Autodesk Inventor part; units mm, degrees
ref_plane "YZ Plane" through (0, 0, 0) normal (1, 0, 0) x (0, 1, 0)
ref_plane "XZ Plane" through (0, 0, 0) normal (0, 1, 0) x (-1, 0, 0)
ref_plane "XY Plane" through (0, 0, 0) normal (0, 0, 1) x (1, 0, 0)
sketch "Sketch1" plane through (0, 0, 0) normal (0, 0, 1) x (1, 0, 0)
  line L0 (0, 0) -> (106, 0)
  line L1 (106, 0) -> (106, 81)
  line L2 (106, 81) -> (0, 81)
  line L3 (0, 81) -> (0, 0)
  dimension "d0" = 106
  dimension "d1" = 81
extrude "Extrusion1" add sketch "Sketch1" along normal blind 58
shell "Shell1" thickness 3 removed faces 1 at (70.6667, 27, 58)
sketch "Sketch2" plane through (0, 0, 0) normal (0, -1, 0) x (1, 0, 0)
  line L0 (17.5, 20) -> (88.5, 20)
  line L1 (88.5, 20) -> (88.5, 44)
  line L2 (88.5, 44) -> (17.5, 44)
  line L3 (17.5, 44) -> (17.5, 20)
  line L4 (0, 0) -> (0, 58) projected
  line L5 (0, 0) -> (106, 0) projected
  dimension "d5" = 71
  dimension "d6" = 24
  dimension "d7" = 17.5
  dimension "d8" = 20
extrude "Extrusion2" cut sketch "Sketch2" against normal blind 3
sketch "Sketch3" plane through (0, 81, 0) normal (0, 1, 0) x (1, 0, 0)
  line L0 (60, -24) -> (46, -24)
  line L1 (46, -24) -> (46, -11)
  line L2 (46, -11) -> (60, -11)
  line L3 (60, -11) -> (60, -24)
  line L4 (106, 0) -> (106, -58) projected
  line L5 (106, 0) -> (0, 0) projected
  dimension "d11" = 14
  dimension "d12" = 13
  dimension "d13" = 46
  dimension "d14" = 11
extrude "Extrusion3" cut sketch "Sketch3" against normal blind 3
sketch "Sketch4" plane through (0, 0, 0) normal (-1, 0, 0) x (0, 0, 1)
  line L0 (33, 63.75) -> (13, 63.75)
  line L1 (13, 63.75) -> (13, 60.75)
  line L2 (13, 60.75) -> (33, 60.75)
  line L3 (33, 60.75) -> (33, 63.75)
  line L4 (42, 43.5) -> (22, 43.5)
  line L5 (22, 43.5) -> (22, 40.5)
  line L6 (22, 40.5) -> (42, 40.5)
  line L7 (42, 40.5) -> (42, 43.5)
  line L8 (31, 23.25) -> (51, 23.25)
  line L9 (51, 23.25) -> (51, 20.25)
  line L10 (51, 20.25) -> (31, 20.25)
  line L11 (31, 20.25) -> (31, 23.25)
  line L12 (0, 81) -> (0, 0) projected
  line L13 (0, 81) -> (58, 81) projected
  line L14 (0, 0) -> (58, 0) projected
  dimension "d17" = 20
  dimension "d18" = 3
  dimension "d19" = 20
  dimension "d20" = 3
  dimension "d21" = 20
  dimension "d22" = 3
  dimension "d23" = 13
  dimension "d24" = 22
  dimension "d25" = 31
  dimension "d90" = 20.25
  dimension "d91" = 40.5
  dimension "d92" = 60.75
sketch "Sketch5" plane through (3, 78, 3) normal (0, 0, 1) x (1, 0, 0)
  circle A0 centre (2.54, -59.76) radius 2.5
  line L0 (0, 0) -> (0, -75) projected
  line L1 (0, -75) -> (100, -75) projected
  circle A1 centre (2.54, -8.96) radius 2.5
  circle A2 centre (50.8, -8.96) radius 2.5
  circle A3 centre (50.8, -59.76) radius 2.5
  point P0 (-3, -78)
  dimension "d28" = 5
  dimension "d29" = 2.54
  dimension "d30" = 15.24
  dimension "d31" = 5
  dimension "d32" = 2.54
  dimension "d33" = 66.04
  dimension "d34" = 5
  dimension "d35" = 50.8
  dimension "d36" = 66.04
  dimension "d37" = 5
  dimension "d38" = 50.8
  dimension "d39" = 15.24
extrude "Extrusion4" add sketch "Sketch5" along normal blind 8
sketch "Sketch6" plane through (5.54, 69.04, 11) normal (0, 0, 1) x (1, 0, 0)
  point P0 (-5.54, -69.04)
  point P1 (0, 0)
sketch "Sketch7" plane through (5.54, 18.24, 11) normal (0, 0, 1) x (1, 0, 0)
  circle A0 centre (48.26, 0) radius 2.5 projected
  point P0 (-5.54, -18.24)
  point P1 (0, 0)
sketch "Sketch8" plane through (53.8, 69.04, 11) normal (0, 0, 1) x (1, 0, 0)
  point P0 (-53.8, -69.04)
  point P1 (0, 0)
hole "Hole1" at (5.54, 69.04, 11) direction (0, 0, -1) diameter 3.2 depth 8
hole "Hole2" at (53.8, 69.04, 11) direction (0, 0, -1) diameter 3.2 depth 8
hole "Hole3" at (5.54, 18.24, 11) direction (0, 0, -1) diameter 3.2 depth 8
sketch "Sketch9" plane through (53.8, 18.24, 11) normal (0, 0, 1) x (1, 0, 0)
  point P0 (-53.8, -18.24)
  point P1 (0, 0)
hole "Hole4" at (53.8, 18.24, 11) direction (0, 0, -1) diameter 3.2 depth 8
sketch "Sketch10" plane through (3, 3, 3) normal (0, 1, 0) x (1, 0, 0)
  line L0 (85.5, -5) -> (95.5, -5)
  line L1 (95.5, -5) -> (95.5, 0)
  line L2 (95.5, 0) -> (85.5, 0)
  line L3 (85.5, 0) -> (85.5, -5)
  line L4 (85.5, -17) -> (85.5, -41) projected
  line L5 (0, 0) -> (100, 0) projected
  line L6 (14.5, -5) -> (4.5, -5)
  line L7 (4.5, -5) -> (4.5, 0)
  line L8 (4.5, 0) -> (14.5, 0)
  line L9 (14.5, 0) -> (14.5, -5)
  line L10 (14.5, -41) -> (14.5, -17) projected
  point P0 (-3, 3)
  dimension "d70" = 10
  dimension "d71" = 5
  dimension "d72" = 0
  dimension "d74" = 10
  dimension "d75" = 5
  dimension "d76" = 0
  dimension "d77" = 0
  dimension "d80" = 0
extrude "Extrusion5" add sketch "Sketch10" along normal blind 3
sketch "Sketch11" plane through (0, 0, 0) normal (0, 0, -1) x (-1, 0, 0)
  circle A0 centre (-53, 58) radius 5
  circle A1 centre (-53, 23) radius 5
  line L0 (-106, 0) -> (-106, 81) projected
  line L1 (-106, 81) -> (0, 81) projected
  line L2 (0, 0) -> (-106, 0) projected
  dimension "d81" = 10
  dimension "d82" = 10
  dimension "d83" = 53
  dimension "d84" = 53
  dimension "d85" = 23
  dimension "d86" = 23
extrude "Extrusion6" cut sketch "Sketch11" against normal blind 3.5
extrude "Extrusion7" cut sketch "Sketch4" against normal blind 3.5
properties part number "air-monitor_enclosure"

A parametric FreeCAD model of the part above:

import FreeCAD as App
import Part
import Sketcher
Q = App.Units.Quantity


def faces_at(feature, points):
    """Names of the faces that lie closest to the given points."""
    faces = feature.Shape.Faces
    near = lambda p: min(range(len(faces)), key=lambda i: faces[i].distToShape(Part.Vertex(*p))[0])
    return sorted({f"Face{near(p) + 1}" for p in points})

doc = App.newDocument("Part")
body = doc.addObject("PartDesign::Body", "Body")

# Sketch on XY plane
sketch1 = body.newObject("Sketcher::SketchObject", "Sketch")
sketch1.AttachmentSupport = (doc.getObject("XY_Plane"), [""])
sketch1.MapMode = "FlatFace"
sketch1.addGeometry([
    Part.LineSegment(App.Vector(0, 81, 0), App.Vector(0, 0, 0)),
    Part.LineSegment(App.Vector(0, 0, 0), App.Vector(106, 0, 0)),
    Part.LineSegment(App.Vector(106, 0, 0), App.Vector(106, 81, 0)),
    Part.LineSegment(App.Vector(106, 81, 0), App.Vector(0, 81, 0)),
], False)
sketch1.addConstraint([
    Sketcher.Constraint("Coincident", 0, 2, 1, 1),
    Sketcher.Constraint("Coincident", 1, 2, 2, 1),
    Sketcher.Constraint("Coincident", 2, 2, 3, 1),
    Sketcher.Constraint("Coincident", 3, 2, 0, 1),
    Sketcher.Constraint("Vertical", 0),
    Sketcher.Constraint("Horizontal", 1),
    Sketcher.Constraint("Vertical", 2),
    Sketcher.Constraint("Horizontal", 3),
    Sketcher.Constraint("Coincident", 0, 2, -1, 1),
    Sketcher.Constraint("DistanceX", 1, 1, 1, 2, Q("106 mm")),
    Sketcher.Constraint("DistanceY", 0, 2, 0, 1, Q("81 mm")),
])
pad1 = body.newObject("PartDesign::Pad", "Pad")
pad1.Profile = sketch1
pad1.Length = 58
doc.recompute()

thickness = body.newObject("PartDesign::Thickness", "Thickness")
thickness.Base = (pad1, faces_at(pad1, [(70.667, 27, 58)]))
thickness.Value = 3
thickness.Reversed = True
thickness.Join = "Intersection"

# Sketch on XZ plane
sketch2 = body.newObject("Sketcher::SketchObject", "Sketch001")
sketch2.AttachmentSupport = (doc.getObject("XZ_Plane"), [""])
sketch2.MapMode = "FlatFace"
sketch2.addGeometry([
    Part.LineSegment(App.Vector(18, 44, 0), App.Vector(18, 20, 0)),
    Part.LineSegment(App.Vector(18, 20, 0), App.Vector(88, 20, 0)),
    Part.LineSegment(App.Vector(88, 20, 0), App.Vector(88, 44, 0)),
    Part.LineSegment(App.Vector(88, 44, 0), App.Vector(18, 44, 0)),
], False)
sketch2.addConstraint([
    Sketcher.Constraint("Coincident", 0, 2, 1, 1),
    Sketcher.Constraint("Coincident", 1, 2, 2, 1),
    Sketcher.Constraint("Coincident", 2, 2, 3, 1),
    Sketcher.Constraint("Coincident", 3, 2, 0, 1),
    Sketcher.Constraint("Vertical", 0),
    Sketcher.Constraint("Horizontal", 1),
    Sketcher.Constraint("Vertical", 2),
    Sketcher.Constraint("Horizontal", 3),
    Sketcher.Constraint("DistanceX", 1, 1, 1, 2, Q("71 mm")),
    Sketcher.Constraint("DistanceY", 0, 2, 0, 1, Q("24 mm")),
    Sketcher.Constraint("DistanceY", -1, 1, 0, 2, Q("20 mm")),
    Sketcher.Constraint("DistanceX", -1, 1, 0, 2, Q("17.5 mm")),
])
pocket1 = body.newObject("PartDesign::Pocket", "Pocket")
pocket1.Profile = sketch2
pocket1.Length = 3

# Sketch on XZ plane
sketch3 = body.newObject("Sketcher::SketchObject", "Sketch002")
sketch3.AttachmentSupport = (doc.getObject("XZ_Plane"), [""])
sketch3.MapMode = "FlatFace"
sketch3.AttachmentOffset = App.Placement(App.Vector(0, 0, -81), App.Rotation())
sketch3.addGeometry([
    Part.LineSegment(App.Vector(46, 24, 0), App.Vector(60, 24, 0)),
    Part.LineSegment(App.Vector(60, 24, 0), App.Vector(60, 11, 0)),
    Part.LineSegment(App.Vector(60, 11, 0), App.Vector(46, 11, 0)),
    Part.LineSegment(App.Vector(46, 11, 0), App.Vector(46, 24, 0)),
], False)
sketch3.addConstraint([
    Sketcher.Constraint("Coincident", 0, 2, 1, 1),
    Sketcher.Constraint("Coincident", 1, 2, 2, 1),
    Sketcher.Constraint("Coincident", 2, 2, 3, 1),
    Sketcher.Constraint("Coincident", 3, 2, 0, 1),
    Sketcher.Constraint("Horizontal", 0),
    Sketcher.Constraint("Vertical", 1),
    Sketcher.Constraint("Horizontal", 2),
    Sketcher.Constraint("Vertical", 3),
    Sketcher.Constraint("DistanceX", 0, 1, 0, 2, Q("14 mm")),
    Sketcher.Constraint("DistanceY", 1, 2, 1, 1, Q("13 mm")),
    Sketcher.Constraint("DistanceY", -1, 1, 1, 2, Q("11 mm")),
    Sketcher.Constraint("DistanceX", -1, 1, 2, 2, Q("46 mm")),
])
pocket2 = body.newObject("PartDesign::Pocket", "Pocket001")
pocket2.Profile = sketch3
pocket2.Length = 3
pocket2.Reversed = True

# Sketch on XY plane
sketch4 = body.newObject("Sketcher::SketchObject", "Sketch003")
sketch4.AttachmentSupport = (doc.getObject("XY_Plane"), [""])
sketch4.MapMode = "FlatFace"
sketch4.AttachmentOffset = App.Placement(App.Vector(0, 0, 3), App.Rotation())
sketch4.addGeometry([
    Part.Circle(App.Vector(5.5, 18.2, 0), App.Vector(0, 0, 1), 2.5),
    Part.Circle(App.Vector(5.5, 69, 0), App.Vector(0, 0, 1), 2.5),
    Part.Circle(App.Vector(53.8, 69, 0), App.Vector(0, 0, 1), 2.5),
    Part.Circle(App.Vector(53.8, 18.2, 0), App.Vector(0, 0, 1), 2.5),
], False)
sketch4.addConstraint([
    Sketcher.Constraint("Equal", 0, 1),
    Sketcher.Constraint("Equal", 1, 2),
    Sketcher.Constraint("Equal", 2, 3),
    Sketcher.Constraint("Horizontal", 1, 3, 2, 3),
    Sketcher.Constraint("Horizontal", 0, 3, 3, 3),
    Sketcher.Constraint("Vertical", 0, 3, 1, 3),
    Sketcher.Constraint("Vertical", 2, 3, 3, 3),
    Sketcher.Constraint("Diameter", 0, Q("5 mm")),
    Sketcher.Constraint("DistanceY", 0, 3, 1, 3, Q("50.8 mm")),
    Sketcher.Constraint("DistanceX", -1, 1, 2, 3, Q("53.8 mm")),
    Sketcher.Constraint("DistanceX", -1, 1, 0, 3, Q("5.54 mm")),
    Sketcher.Constraint("DistanceY", -1, 1, 0, 3, Q("18.24 mm")),
])
pad2 = body.newObject("PartDesign::Pad", "Pad001")
pad2.Profile = sketch4
pad2.Length = 8

# Sketch on XY plane
sketch5 = body.newObject("Sketcher::SketchObject", "Sketch004")
sketch5.AttachmentSupport = (doc.getObject("XY_Plane"), [""])
sketch5.MapMode = "FlatFace"
sketch5.AttachmentOffset = App.Placement(App.Vector(0, 0, 11), App.Rotation())
sketch5.addGeometry(Part.Circle(App.Vector(5.5, 69, 0), App.Vector(0, 0, 1), 1.6), False)
sketch5.addConstraint([
    Sketcher.Constraint("Diameter", 0, Q("3.2 mm")),
    Sketcher.Constraint("DistanceX", -1, 1, 0, 3, Q("5.54 mm")),
    Sketcher.Constraint("DistanceY", -1, 1, 0, 3, Q("69.04 mm")),
])
doc.recompute()
hole = body.newObject("PartDesign::Hole", "Hole")
hole.Profile = sketch5
hole.ThreadType = "None"
hole.Diameter = 3.2
hole.DepthType = "Dimension"
hole.Depth = 8
hole.DrillPoint = "Flat"

# Sketch on XY plane
sketch6 = body.newObject("Sketcher::SketchObject", "Sketch005")
sketch6.AttachmentSupport = (doc.getObject("XY_Plane"), [""])
sketch6.MapMode = "FlatFace"
sketch6.AttachmentOffset = App.Placement(App.Vector(0, 0, 11), App.Rotation())
sketch6.addGeometry(Part.Circle(App.Vector(53.8, 69, 0), App.Vector(0, 0, 1), 1.6), False)
sketch6.addConstraint([
    Sketcher.Constraint("Diameter", 0, Q("3.2 mm")),
    Sketcher.Constraint("DistanceX", -1, 1, 0, 3, Q("53.8 mm")),
    Sketcher.Constraint("DistanceY", -1, 1, 0, 3, Q("69.04 mm")),
])
doc.recompute()
hole2 = body.newObject("PartDesign::Hole", "Hole001")
hole2.Profile = sketch6
hole2.ThreadType = "None"
hole2.Diameter = 3.2
hole2.DepthType = "Dimension"
hole2.Depth = 8
hole2.DrillPoint = "Flat"

# Sketch on XY plane
sketch7 = body.newObject("Sketcher::SketchObject", "Sketch006")
sketch7.AttachmentSupport = (doc.getObject("XY_Plane"), [""])
sketch7.MapMode = "FlatFace"
sketch7.AttachmentOffset = App.Placement(App.Vector(0, 0, 11), App.Rotation())
sketch7.addGeometry(Part.Circle(App.Vector(5.5, 18.2, 0), App.Vector(0, 0, 1), 1.6), False)
sketch7.addConstraint([
    Sketcher.Constraint("Diameter", 0, Q("3.2 mm")),
    Sketcher.Constraint("DistanceX", -1, 1, 0, 3, Q("5.54 mm")),
    Sketcher.Constraint("DistanceY", -1, 1, 0, 3, Q("18.24 mm")),
])
doc.recompute()
hole3 = body.newObject("PartDesign::Hole", "Hole002")
hole3.Profile = sketch7
hole3.ThreadType = "None"
hole3.Diameter = 3.2
hole3.DepthType = "Dimension"
hole3.Depth = 8
hole3.DrillPoint = "Flat"

# Sketch on XY plane
sketch8 = body.newObject("Sketcher::SketchObject", "Sketch007")
sketch8.AttachmentSupport = (doc.getObject("XY_Plane"), [""])
sketch8.MapMode = "FlatFace"
sketch8.AttachmentOffset = App.Placement(App.Vector(0, 0, 11), App.Rotation())
sketch8.addGeometry(Part.Circle(App.Vector(53.8, 18.2, 0), App.Vector(0, 0, 1), 1.6), False)
sketch8.addConstraint([
    Sketcher.Constraint("Diameter", 0, Q("3.2 mm")),
    Sketcher.Constraint("DistanceX", -1, 1, 0, 3, Q("53.8 mm")),
    Sketcher.Constraint("DistanceY", -1, 1, 0, 3, Q("18.24 mm")),
])
doc.recompute()
hole4 = body.newObject("PartDesign::Hole", "Hole003")
hole4.Profile = sketch8
hole4.ThreadType = "None"
hole4.Diameter = 3.2
hole4.DepthType = "Dimension"
hole4.Depth = 8
hole4.DrillPoint = "Flat"

# Sketch on XZ plane
sketch9 = body.newObject("Sketcher::SketchObject", "Sketch008")
sketch9.AttachmentSupport = (doc.getObject("XZ_Plane"), [""])
sketch9.MapMode = "FlatFace"
sketch9.AttachmentOffset = App.Placement(App.Vector(0, 0, -3), App.Rotation())
sketch9.addGeometry([
    Part.LineSegment(App.Vector(88, 3, 0), App.Vector(88, 8, 0)),  # 0
    Part.LineSegment(App.Vector(88, 8, 0), App.Vector(98, 8, 0)),  # 1
    Part.LineSegment(App.Vector(98, 8, 0), App.Vector(98, 3, 0)),  # 2
    Part.LineSegment(App.Vector(98, 3, 0), App.Vector(88, 3, 0)),  # 3
    Part.LineSegment(App.Vector(18, 8, 0), App.Vector(18, 3, 0)),  # 4
    Part.LineSegment(App.Vector(18, 3, 0), App.Vector(8, 3, 0)),  # 5
    Part.LineSegment(App.Vector(8, 3, 0), App.Vector(8, 8, 0)),  # 6
    Part.LineSegment(App.Vector(8, 8, 0), App.Vector(18, 8, 0)),  # 7
], False)
sketch9.addConstraint([
    Sketcher.Constraint("Coincident", 0, 2, 1, 1),
    Sketcher.Constraint("Coincident", 1, 2, 2, 1),
    Sketcher.Constraint("Coincident", 2, 2, 3, 1),
    Sketcher.Constraint("Coincident", 3, 2, 0, 1),
    Sketcher.Constraint("Coincident", 4, 2, 5, 1),
    Sketcher.Constraint("Coincident", 5, 2, 6, 1),
    Sketcher.Constraint("Coincident", 6, 2, 7, 1),
    Sketcher.Constraint("Coincident", 7, 2, 4, 1),
    Sketcher.Constraint("Vertical", 0),
    Sketcher.Constraint("Horizontal", 1),
    Sketcher.Constraint("Vertical", 2),
    Sketcher.Constraint("Horizontal", 3),
    Sketcher.Constraint("Vertical", 4),
    Sketcher.Constraint("Horizontal", 5),
    Sketcher.Constraint("Vertical", 6),
    Sketcher.Constraint("Horizontal", 7),
    Sketcher.Constraint("Horizontal", 3, 2, 4, 2),
    Sketcher.Constraint("Horizontal", 1, 2, 6, 2),
    Sketcher.Constraint("Equal", 3, 5),
    Sketcher.Constraint("DistanceX", 1, 1, 1, 2, Q("10 mm")),
    Sketcher.Constraint("DistanceY", 0, 1, 0, 2, Q("5 mm")),
    Sketcher.Constraint("DistanceY", -1, 1, 0, 2, Q("8 mm")),
    Sketcher.Constraint("DistanceX", 4, 2, 3, 2, Q("71 mm")),
    Sketcher.Constraint("DistanceX", -1, 1, 0, 2, Q("88.5 mm")),
])
pad3 = body.newObject("PartDesign::Pad", "Pad002")
pad3.Profile = sketch9
pad3.Length = 3
pad3.Reversed = True

# Sketch on XY plane
sketch10 = body.newObject("Sketcher::SketchObject", "Sketch009")
sketch10.AttachmentSupport = (doc.getObject("XY_Plane"), [""])
sketch10.MapMode = "FlatFace"
sketch10.addGeometry([
    Part.Circle(App.Vector(53, 58, 0), App.Vector(0, 0, 1), 5),
    Part.Circle(App.Vector(53, 23, 0), App.Vector(0, 0, 1), 5),
], False)
sketch10.addConstraint([
    Sketcher.Constraint("Equal", 0, 1),
    Sketcher.Constraint("Vertical", 0, 3, 1, 3),
    Sketcher.Constraint("Diameter", 0, Q("10 mm")),
    Sketcher.Constraint("DistanceX", -1, 1, 0, 3, Q("53 mm")),
    Sketcher.Constraint("DistanceY", -1, 1, 1, 3, Q("23 mm")),
    Sketcher.Constraint("DistanceY", -1, 1, 0, 3, Q("58 mm")),
])
pocket3 = body.newObject("PartDesign::Pocket", "Pocket002")
pocket3.Profile = sketch10
pocket3.Length = 3.5
pocket3.Reversed = True

# Sketch on YZ plane
sketch11 = body.newObject("Sketcher::SketchObject", "Sketch010")
sketch11.AttachmentSupport = (doc.getObject("YZ_Plane"), [""])
sketch11.MapMode = "FlatFace"
sketch11.addGeometry([
    Part.LineSegment(App.Vector(60.8, 33, 0), App.Vector(63.8, 33, 0)),  # 0
    Part.LineSegment(App.Vector(63.8, 33, 0), App.Vector(63.8, 13, 0)),  # 1
    Part.LineSegment(App.Vector(63.8, 13, 0), App.Vector(60.8, 13, 0)),  # 2
    Part.LineSegment(App.Vector(60.8, 13, 0), App.Vector(60.8, 33, 0)),  # 3
    Part.LineSegment(App.Vector(40.5, 42, 0), App.Vector(43.5, 42, 0)),  # 4
    Part.LineSegment(App.Vector(43.5, 42, 0), App.Vector(43.5, 22, 0)),  # 5
    Part.LineSegment(App.Vector(43.5, 22, 0), App.Vector(40.5, 22, 0)),  # 6
    Part.LineSegment(App.Vector(40.5, 22, 0), App.Vector(40.5, 42, 0)),  # 7
    Part.LineSegment(App.Vector(23.2, 51, 0), App.Vector(23.2, 31, 0)),  # 8
    Part.LineSegment(App.Vector(23.2, 31, 0), App.Vector(20.2, 31, 0)),  # 9
    Part.LineSegment(App.Vector(20.2, 31, 0), App.Vector(20.2, 51, 0)),  # 10
    Part.LineSegment(App.Vector(20.2, 51, 0), App.Vector(23.2, 51, 0)),  # 11
], False)
sketch11.addConstraint([
    Sketcher.Constraint("Coincident", 0, 2, 1, 1),
    Sketcher.Constraint("Coincident", 1, 2, 2, 1),
    Sketcher.Constraint("Coincident", 2, 2, 3, 1),
    Sketcher.Constraint("Coincident", 3, 2, 0, 1),
    Sketcher.Constraint("Coincident", 4, 2, 5, 1),
    Sketcher.Constraint("Coincident", 5, 2, 6, 1),
    Sketcher.Constraint("Coincident", 6, 2, 7, 1),
    Sketcher.Constraint("Coincident", 7, 2, 4, 1),
    Sketcher.Constraint("Coincident", 8, 2, 9, 1),
    Sketcher.Constraint("Coincident", 9, 2, 10, 1),
    Sketcher.Constraint("Coincident", 10, 2, 11, 1),
    Sketcher.Constraint("Coincident", 11, 2, 8, 1),
    Sketcher.Constraint("Horizontal", 0),
    Sketcher.Constraint("Vertical", 1),
    Sketcher.Constraint("Horizontal", 2),
    Sketcher.Constraint("Vertical", 3),
    Sketcher.Constraint("Horizontal", 4),
    Sketcher.Constraint("Vertical", 5),
    Sketcher.Constraint("Horizontal", 6),
    Sketcher.Constraint("Vertical", 7),
    Sketcher.Constraint("Vertical", 8),
    Sketcher.Constraint("Horizontal", 9),
    Sketcher.Constraint("Vertical", 10),
    Sketcher.Constraint("Horizontal", 11),
    Sketcher.Constraint("Equal", 2, 4),
    Sketcher.Constraint("Equal", 6, 9),
    Sketcher.Constraint("Equal", 3, 5),
    Sketcher.Constraint("Equal", 7, 8),
    Sketcher.Constraint("DistanceX", 0, 1, 0, 2, Q("3 mm")),
    Sketcher.Constraint("DistanceY", 1, 2, 1, 1, Q("20 mm")),
    Sketcher.Constraint("DistanceY", -1, 1, 1, 2, Q("13 mm")),
    Sketcher.Constraint("DistanceY", -1, 1, 5, 2, Q("22 mm")),
    Sketcher.Constraint("DistanceY", -1, 1, 8, 2, Q("31 mm")),
    Sketcher.Constraint("DistanceX", -1, 1, 6, 2, Q("40.5 mm")),
    Sketcher.Constraint("DistanceX", -1, 1, 2, 2, Q("60.75 mm")),
    Sketcher.Constraint("DistanceX", -1, 1, 9, 2, Q("20.25 mm")),
])
pocket4 = body.newObject("PartDesign::Pocket", "Pocket003")
pocket4.Profile = sketch11
pocket4.Length = 3.5
pocket4.Reversed = True

doc.recompute()
